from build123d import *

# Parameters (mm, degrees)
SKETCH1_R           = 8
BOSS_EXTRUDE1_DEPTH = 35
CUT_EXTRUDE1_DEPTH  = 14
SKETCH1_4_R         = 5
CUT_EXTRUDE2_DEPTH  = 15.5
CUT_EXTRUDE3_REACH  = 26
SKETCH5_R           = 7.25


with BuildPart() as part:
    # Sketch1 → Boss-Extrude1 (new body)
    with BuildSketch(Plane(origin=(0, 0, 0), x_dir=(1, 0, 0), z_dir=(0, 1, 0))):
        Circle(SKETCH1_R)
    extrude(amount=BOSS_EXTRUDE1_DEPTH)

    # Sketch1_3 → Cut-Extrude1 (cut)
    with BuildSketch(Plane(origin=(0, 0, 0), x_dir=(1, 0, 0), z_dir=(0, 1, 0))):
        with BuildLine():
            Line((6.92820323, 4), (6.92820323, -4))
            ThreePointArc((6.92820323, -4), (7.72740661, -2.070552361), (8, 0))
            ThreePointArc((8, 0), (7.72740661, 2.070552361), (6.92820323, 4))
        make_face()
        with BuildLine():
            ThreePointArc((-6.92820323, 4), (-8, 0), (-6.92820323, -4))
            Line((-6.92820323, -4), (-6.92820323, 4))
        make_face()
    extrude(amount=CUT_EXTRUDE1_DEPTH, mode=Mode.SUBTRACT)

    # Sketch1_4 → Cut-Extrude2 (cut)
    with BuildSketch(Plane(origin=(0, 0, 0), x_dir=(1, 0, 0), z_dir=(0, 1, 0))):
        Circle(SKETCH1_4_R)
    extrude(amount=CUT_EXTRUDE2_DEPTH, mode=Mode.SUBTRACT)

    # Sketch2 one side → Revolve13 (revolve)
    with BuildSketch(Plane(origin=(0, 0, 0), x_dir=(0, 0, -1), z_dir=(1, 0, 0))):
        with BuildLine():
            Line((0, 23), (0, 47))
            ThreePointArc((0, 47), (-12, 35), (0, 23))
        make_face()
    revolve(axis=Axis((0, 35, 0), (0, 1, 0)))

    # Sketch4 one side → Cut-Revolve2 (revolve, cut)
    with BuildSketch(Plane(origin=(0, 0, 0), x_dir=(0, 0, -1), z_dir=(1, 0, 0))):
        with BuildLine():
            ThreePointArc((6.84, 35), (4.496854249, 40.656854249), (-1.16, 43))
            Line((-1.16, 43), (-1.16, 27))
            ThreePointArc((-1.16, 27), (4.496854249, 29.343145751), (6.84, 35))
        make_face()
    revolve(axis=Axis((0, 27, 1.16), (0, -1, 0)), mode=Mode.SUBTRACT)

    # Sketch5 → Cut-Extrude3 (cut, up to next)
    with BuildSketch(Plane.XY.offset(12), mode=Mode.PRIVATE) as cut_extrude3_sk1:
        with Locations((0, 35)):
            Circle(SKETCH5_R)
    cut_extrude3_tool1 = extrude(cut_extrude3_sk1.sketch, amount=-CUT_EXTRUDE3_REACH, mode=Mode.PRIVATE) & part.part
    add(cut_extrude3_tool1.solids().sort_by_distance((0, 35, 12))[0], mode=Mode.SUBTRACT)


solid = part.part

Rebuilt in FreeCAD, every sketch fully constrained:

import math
import FreeCAD as App
import Part
import Sketcher
Q = App.Units.Quantity

doc = App.newDocument("Part")
params = doc.addObject("Spreadsheet::Sheet", "Params")
for row, (alias, value) in enumerate([
    ("sketch1_diameter", "16 mm"),
    ("pad1_length", "35 mm"),
    ("sketch2_radius", "8 mm"),
    ("sketch2_height", "8 mm"),
    ("pocket1_length", "14 mm"),
    ("sketch3_diameter", "10 mm"),
    ("pocket2_length", "15.5 mm"),
    ("sketch4_radius", "12 mm"),
    ("revolution_angle", "360 deg"),
    ("sketch5_radius", "8 mm"),
    ("groove_angle", "360 deg"),
    ("sketch6_diameter", "14.5 mm"),
    ("pocket3_length", "7.458063 mm"),
], start=1):
    params.set(f"A{row}", alias)
    params.set(f"B{row}", "=" + value)
    params.setAlias(f"B{row}", alias)

body = doc.addObject("PartDesign::Body", "Body")

sketch1 = doc.addObject("Sketcher::SketchObject", "Sketch")
body.addObject(sketch1)
sketch1.AttachmentSupport = (doc.XZ_Plane, [""])
sketch1.MapMode = "FlatFace"
sketch1.addGeometry(Part.Circle(App.Vector(0, 0, 0), App.Vector(0, 0, 1), 8), False)
sketch1.addConstraint(Sketcher.Constraint("Coincident", 0, 3, -1, 1))
sketch1.addConstraint(Sketcher.Constraint("Diameter", 0, Q("16 mm")))
sketch1.setExpression("Constraints[1]", "Params.sketch1_diameter")
pad1 = doc.addObject("PartDesign::Pad", "Pad")
body.addObject(pad1)
pad1.Profile = sketch1
pad1.setExpression("Length", "Params.pad1_length")
pad1.Reversed = True

sketch2 = doc.addObject("Sketcher::SketchObject", "Sketch001")
body.addObject(sketch2)
sketch2.AttachmentSupport = (doc.XZ_Plane, [""])
sketch2.MapMode = "FlatFace"
sketch2.addGeometry(Part.LineSegment(App.Vector(6.9, -4, 0), App.Vector(6.9, 4, 0)), False)
sketch2.addGeometry(Part.ArcOfCircle(Part.Circle(App.Vector(0, 0, 0), App.Vector(0, 0, 1), 8), math.radians(0), math.radians(30)), False)
sketch2.addGeometry(Part.ArcOfCircle(Part.Circle(App.Vector(0, 0, 0), App.Vector(0, 0, 1), 8), math.radians(-30), math.radians(0)), False)
sketch2.addGeometry(Part.ArcOfCircle(Part.Circle(App.Vector(0, 0, 0), App.Vector(0, 0, 1), 8), math.radians(150), math.radians(210)), False)
sketch2.addGeometry(Part.LineSegment(App.Vector(-6.9, 4, 0), App.Vector(-6.9, -4, 0)), False)
sketch2.addConstraint(Sketcher.Constraint("Coincident", 0, 2, 1, 2))
sketch2.addConstraint(Sketcher.Constraint("Tangent", 1, 1, 2, 2))
sketch2.addConstraint(Sketcher.Constraint("Coincident", 2, 1, 0, 1))
sketch2.addConstraint(Sketcher.Constraint("Coincident", 3, 1, 4, 1))
sketch2.addConstraint(Sketcher.Constraint("Coincident", 4, 2, 3, 2))
sketch2.addConstraint(Sketcher.Constraint("Vertical", 0))
sketch2.addConstraint(Sketcher.Constraint("Vertical", 4))
sketch2.addConstraint(Sketcher.Constraint("Coincident", 1, 3, -1, 1))
sketch2.addConstraint(Sketcher.Constraint("Coincident", 3, 3, -1, 1))
sketch2.addConstraint(Sketcher.Constraint("Equal", 1, 2))
sketch2.addConstraint(Sketcher.Constraint("Equal", 2, 3))
sketch2.addConstraint(Sketcher.Constraint("PointOnObject", 1, 1, -1))
sketch2.addConstraint(Sketcher.Constraint("Horizontal", 0, 2, 3, 1))
sketch2.addConstraint(Sketcher.Constraint("Radius", 1, Q("8 mm")))
sketch2.addConstraint(Sketcher.Constraint("DistanceY", 0, 1, 0, 2, Q("8 mm")))
sketch2.setExpression("Constraints[13]", "Params.sketch2_radius")
sketch2.setExpression("Constraints[14]", "Params.sketch2_height")
pocket1 = doc.addObject("PartDesign::Pocket", "Pocket")
body.addObject(pocket1)
pocket1.Profile = sketch2
pocket1.setExpression("Length", "Params.pocket1_length")

sketch3 = doc.addObject("Sketcher::SketchObject", "Sketch002")
body.addObject(sketch3)
sketch3.AttachmentSupport = (doc.XZ_Plane, [""])
sketch3.MapMode = "FlatFace"
sketch3.addGeometry(Part.Circle(App.Vector(0, 0, 0), App.Vector(0, 0, 1), 5), False)
sketch3.addConstraint(Sketcher.Constraint("Coincident", 0, 3, -1, 1))
sketch3.addConstraint(Sketcher.Constraint("Diameter", 0, Q("10 mm")))
sketch3.setExpression("Constraints[1]", "Params.sketch3_diameter")
pocket2 = doc.addObject("PartDesign::Pocket", "Pocket001")
body.addObject(pocket2)
pocket2.Profile = sketch3
pocket2.setExpression("Length", "Params.pocket2_length")

sketch4 = doc.addObject("Sketcher::SketchObject", "Sketch003")
body.addObject(sketch4)
sketch4.AttachmentSupport = (doc.YZ_Plane, [""])
sketch4.MapMode = "FlatFace"
sketch4.addGeometry(Part.LineSegment(App.Vector(23, 0, 0), App.Vector(47, 0, 0)), False)
sketch4.addGeometry(Part.ArcOfCircle(Part.Circle(App.Vector(35, 0, 0), App.Vector(0, 0, 1), 12), math.radians(0), math.radians(180)), False)
sketch4.addConstraint(Sketcher.Constraint("Coincident", 0, 1, 1, 2))
sketch4.addConstraint(Sketcher.Constraint("Coincident", 1, 1, 0, 2))
sketch4.addConstraint(Sketcher.Constraint("Horizontal", 0))
sketch4.addConstraint(Sketcher.Constraint("PointOnObject", 1, 3, -1))
sketch4.addConstraint(Sketcher.Constraint("PointOnObject", 0, 1, -1))
sketch4.addConstraint(Sketcher.Constraint("Radius", 1, Q("12 mm")))
sketch4.addConstraint(Sketcher.Constraint("DistanceX", -1, 1, 1, 3, Q("35 mm")))
sketch4.setExpression("Constraints[5]", "Params.sketch4_radius")
revolution = doc.addObject("PartDesign::Revolution", "Revolution")
body.addObject(revolution)
revolution.Profile = sketch4
revolution.ReferenceAxis = (sketch4, ["H_Axis"])
revolution.setExpression("Angle", "Params.revolution_angle")

sketch5 = doc.addObject("Sketcher::SketchObject", "Sketch004")
body.addObject(sketch5)
sketch5.AttachmentSupport = (doc.YZ_Plane, [""])
sketch5.MapMode = "FlatFace"
sketch5.addGeometry(Part.ArcOfCircle(Part.Circle(App.Vector(35, 1, 0), App.Vector(0, 0, 1), 8), math.radians(-90), math.radians(0)), False)
sketch5.addGeometry(Part.LineSegment(App.Vector(43, 1, 0), App.Vector(27, 1, 0)), False)
sketch5.addGeometry(Part.ArcOfCircle(Part.Circle(App.Vector(35, 1, 0), App.Vector(0, 0, 1), 8), math.radians(-180), math.radians(-90)), False)
sketch5.addGeometry(Part.LineSegment(App.Vector(43, 1, 0), App.Vector(27, 1, 0)), True)
sketch5.addConstraint(Sketcher.Constraint("Coincident", 0, 2, 1, 1))
sketch5.addConstraint(Sketcher.Constraint("Coincident", 1, 2, 2, 1))
sketch5.addConstraint(Sketcher.Constraint("Tangent", 2, 2, 0, 1))
sketch5.addConstraint(Sketcher.Constraint("Horizontal", 1))
sketch5.addConstraint(Sketcher.Constraint("Horizontal", 3))
sketch5.addConstraint(Sketcher.Constraint("Coincident", 3, 1, 0, 2))
sketch5.addConstraint(Sketcher.Constraint("Equal", 0, 2))
sketch5.addConstraint(Sketcher.Constraint("Horizontal", 2, 3, 0, 2))
sketch5.addConstraint(Sketcher.Constraint("Vertical", 0, 3, 2, 2))
sketch5.addConstraint(Sketcher.Constraint("Equal", 1, 3))
sketch5.addConstraint(Sketcher.Constraint("Radius", 0, Q("8 mm")))
sketch5.addConstraint(Sketcher.Constraint("DistanceX", -1, 1, 0, 3, Q("35 mm")))
sketch5.addConstraint(Sketcher.Constraint("DistanceY", -1, 1, 0, 3, Q("1.16 mm")))
sketch5.setExpression("Constraints[10]", "Params.sketch5_radius")
groove = doc.addObject("PartDesign::Groove", "Groove")
body.addObject(groove)
groove.Profile = sketch5
groove.ReferenceAxis = (sketch5, ["Axis0"])
groove.setExpression("Angle", "Params.groove_angle")

sketch6 = doc.addObject("Sketcher::SketchObject", "Sketch005")
body.addObject(sketch6)
sketch6.AttachmentSupport = (doc.XY_Plane, [""])
sketch6.MapMode = "FlatFace"
sketch6.AttachmentOffset = App.Placement(App.Vector(0, 0, 12), App.Rotation())
sketch6.addGeometry(Part.Circle(App.Vector(0, 35, 0), App.Vector(0, 0, 1), 7), False)
sketch6.addConstraint(Sketcher.Constraint("PointOnObject", 0, 3, -2))
sketch6.addConstraint(Sketcher.Constraint("Diameter", 0, Q("14.5 mm")))
sketch6.addConstraint(Sketcher.Constraint("DistanceY", -1, 1, 0, 3, Q("35 mm")))
sketch6.setExpression("Constraints[1]", "Params.sketch6_diameter")
pocket3 = doc.addObject("PartDesign::Pocket", "Pocket002")
body.addObject(pocket3)
pocket3.Profile = sketch6
pocket3.setExpression("Length", "Params.pocket3_length")

doc.recompute()
